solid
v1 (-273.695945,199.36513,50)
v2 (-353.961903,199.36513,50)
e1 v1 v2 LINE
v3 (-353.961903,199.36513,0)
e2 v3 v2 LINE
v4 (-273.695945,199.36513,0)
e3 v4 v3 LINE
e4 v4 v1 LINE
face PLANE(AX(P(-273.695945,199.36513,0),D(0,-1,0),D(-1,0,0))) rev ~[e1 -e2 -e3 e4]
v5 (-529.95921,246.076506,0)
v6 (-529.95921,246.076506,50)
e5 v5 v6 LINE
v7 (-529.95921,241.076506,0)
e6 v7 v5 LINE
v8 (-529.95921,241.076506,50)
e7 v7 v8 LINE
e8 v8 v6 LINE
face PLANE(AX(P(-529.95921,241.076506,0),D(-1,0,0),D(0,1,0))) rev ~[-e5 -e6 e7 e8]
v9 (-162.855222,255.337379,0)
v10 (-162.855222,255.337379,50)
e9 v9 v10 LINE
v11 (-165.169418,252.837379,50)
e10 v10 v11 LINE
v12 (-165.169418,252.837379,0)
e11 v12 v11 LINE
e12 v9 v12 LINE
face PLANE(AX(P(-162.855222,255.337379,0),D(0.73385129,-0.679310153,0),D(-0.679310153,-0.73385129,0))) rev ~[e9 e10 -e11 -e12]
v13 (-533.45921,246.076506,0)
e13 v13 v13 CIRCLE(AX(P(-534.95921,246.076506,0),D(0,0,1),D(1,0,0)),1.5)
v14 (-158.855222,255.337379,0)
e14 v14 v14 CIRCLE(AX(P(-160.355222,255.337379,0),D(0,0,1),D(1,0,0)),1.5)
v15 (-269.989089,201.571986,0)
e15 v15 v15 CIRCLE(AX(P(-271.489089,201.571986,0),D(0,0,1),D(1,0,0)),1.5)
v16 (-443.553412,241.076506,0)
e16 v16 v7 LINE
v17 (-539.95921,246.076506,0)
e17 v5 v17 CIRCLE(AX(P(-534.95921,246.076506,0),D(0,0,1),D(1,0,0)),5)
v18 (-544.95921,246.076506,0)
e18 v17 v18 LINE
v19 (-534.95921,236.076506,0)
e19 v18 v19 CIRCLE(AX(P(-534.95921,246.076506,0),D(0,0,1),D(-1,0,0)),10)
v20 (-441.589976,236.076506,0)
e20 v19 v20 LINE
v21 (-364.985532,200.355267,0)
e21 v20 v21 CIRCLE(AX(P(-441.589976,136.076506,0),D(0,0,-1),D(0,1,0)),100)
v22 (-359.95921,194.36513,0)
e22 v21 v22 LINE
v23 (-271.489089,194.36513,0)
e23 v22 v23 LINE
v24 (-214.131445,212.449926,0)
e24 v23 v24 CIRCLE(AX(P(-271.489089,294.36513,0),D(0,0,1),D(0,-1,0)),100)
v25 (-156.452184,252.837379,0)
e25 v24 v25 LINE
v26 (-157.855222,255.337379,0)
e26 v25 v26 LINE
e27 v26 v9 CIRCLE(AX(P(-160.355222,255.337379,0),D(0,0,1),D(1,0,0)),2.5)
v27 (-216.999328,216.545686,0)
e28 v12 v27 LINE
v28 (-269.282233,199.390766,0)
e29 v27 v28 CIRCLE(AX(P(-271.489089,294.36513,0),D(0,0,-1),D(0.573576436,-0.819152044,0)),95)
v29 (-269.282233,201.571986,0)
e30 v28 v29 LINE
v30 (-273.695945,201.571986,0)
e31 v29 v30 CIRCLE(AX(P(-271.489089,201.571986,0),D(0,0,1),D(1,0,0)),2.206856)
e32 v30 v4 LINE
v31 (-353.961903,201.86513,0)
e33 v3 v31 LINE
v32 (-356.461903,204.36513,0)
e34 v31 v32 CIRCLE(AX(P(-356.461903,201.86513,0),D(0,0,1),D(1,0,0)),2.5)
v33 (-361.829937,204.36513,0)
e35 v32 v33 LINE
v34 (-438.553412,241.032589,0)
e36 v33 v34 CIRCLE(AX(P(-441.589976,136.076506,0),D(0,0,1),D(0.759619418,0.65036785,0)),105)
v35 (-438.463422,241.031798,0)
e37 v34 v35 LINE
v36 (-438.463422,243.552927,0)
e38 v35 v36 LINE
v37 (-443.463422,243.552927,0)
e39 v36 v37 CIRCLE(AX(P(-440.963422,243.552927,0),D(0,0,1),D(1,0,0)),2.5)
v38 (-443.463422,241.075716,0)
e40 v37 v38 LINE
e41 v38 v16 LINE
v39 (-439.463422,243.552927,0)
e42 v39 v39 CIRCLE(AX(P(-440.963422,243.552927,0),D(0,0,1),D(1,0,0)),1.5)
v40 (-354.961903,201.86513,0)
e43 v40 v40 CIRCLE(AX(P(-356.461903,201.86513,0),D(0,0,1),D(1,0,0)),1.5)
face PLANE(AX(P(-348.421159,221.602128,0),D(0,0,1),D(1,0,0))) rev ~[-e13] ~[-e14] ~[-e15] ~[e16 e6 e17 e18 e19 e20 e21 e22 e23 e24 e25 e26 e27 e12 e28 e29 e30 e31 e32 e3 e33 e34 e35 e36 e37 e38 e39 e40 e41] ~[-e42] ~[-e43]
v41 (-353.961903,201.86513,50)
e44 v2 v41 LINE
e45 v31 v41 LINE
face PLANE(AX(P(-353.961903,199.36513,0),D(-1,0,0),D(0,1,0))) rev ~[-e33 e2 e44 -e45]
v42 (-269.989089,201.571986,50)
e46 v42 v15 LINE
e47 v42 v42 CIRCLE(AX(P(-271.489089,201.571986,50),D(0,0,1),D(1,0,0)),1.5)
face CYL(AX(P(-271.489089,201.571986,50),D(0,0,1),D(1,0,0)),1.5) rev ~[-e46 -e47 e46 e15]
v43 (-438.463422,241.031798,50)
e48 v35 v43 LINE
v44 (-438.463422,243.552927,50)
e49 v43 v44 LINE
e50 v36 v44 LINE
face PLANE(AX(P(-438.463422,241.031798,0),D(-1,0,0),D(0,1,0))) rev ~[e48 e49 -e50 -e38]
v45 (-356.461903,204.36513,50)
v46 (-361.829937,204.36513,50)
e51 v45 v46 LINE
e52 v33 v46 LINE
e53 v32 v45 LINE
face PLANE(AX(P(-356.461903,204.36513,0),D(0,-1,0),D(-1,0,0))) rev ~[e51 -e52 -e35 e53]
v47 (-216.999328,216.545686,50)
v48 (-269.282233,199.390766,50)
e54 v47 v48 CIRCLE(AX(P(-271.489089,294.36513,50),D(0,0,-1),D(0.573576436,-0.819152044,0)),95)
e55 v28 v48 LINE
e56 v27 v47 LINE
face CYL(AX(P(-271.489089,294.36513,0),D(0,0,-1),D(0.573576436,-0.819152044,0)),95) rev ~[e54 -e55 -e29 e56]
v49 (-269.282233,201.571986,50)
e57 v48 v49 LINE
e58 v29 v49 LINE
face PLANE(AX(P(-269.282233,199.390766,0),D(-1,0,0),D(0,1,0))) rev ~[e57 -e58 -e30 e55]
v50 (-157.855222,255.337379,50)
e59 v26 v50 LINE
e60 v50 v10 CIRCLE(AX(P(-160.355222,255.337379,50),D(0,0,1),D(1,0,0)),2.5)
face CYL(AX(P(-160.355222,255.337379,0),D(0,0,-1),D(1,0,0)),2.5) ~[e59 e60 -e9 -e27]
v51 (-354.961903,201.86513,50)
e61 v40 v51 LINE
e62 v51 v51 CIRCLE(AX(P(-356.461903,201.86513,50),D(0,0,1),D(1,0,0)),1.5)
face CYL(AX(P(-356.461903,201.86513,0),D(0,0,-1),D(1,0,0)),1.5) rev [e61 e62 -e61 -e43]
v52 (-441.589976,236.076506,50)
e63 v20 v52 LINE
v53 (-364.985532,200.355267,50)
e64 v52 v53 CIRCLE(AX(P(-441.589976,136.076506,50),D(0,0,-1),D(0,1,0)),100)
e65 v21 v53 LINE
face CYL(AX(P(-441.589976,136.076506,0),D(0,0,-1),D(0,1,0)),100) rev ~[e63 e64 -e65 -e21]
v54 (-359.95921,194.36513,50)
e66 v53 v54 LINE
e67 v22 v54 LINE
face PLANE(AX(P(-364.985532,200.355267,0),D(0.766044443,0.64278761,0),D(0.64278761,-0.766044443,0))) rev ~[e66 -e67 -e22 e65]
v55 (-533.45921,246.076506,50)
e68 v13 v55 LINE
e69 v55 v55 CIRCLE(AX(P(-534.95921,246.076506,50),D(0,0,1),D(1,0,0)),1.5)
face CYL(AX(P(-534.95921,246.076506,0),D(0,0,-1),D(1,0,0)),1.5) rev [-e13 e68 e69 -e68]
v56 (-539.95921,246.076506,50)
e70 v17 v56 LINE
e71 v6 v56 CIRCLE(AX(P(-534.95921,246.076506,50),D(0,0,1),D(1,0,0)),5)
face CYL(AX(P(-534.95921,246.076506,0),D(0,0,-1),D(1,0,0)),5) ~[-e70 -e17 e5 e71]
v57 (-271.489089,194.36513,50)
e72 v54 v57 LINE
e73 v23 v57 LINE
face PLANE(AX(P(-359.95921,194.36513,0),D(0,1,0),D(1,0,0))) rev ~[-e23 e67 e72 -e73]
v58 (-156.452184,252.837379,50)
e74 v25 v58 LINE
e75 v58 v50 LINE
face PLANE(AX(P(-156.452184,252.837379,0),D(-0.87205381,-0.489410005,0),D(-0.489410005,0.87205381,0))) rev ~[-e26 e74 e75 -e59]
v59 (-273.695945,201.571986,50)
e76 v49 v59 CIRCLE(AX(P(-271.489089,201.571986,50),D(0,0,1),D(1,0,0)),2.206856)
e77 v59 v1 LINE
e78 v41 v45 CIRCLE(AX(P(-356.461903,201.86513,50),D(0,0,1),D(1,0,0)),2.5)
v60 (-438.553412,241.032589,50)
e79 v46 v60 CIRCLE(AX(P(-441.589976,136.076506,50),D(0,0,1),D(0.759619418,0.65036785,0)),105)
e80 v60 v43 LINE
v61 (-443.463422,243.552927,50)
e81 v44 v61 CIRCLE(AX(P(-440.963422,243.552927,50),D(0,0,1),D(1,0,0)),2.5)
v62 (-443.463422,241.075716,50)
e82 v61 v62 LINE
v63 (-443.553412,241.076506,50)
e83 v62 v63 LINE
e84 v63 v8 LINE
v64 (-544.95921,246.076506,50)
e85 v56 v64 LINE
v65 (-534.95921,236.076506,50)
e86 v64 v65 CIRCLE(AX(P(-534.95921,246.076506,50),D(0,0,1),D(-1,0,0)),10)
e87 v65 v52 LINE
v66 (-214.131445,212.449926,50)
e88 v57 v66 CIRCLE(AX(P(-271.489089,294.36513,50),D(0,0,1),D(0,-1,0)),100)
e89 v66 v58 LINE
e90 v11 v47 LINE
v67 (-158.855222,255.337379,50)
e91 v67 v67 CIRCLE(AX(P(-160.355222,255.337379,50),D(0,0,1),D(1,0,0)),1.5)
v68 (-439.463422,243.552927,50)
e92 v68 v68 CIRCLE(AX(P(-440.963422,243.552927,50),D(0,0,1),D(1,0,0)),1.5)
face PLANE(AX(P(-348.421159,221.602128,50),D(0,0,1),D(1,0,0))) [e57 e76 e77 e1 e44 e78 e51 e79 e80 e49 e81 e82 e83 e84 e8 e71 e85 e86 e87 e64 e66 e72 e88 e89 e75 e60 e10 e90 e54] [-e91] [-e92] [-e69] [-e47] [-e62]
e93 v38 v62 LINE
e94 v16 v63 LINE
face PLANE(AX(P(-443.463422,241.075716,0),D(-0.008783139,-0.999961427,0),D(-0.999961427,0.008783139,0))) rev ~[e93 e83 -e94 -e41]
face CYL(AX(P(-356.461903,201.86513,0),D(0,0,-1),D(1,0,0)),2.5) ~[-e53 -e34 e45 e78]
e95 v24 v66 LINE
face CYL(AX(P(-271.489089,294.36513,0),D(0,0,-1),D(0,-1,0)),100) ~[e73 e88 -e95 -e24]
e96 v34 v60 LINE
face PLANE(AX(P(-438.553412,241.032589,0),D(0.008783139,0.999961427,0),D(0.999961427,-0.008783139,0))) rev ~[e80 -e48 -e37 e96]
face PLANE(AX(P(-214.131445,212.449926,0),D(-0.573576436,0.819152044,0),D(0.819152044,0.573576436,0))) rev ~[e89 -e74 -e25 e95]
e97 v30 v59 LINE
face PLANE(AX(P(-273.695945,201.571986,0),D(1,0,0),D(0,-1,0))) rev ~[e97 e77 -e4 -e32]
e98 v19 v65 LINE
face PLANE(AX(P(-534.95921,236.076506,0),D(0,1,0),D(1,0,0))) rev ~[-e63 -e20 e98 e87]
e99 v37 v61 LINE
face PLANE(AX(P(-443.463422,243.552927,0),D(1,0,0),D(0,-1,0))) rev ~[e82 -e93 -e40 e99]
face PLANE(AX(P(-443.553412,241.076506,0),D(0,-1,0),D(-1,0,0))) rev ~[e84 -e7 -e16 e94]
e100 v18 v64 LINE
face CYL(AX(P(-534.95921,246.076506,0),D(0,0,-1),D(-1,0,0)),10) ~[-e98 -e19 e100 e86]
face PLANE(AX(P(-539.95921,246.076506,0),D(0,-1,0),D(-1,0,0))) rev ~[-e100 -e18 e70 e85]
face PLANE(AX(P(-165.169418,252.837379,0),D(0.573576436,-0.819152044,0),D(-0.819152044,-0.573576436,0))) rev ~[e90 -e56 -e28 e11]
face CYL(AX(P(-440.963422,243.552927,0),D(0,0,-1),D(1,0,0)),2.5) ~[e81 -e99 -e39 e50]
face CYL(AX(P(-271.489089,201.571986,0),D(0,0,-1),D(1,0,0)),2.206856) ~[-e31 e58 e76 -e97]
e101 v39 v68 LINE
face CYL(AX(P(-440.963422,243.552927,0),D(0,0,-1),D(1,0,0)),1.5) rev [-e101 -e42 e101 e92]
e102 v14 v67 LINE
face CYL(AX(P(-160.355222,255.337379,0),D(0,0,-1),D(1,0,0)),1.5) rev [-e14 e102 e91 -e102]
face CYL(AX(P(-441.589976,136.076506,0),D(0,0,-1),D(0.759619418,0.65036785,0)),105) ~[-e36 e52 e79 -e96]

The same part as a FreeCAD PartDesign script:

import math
import FreeCAD as App
import Part
import Sketcher
from FreeCAD import Vector
Q = App.Units.Quantity

doc = App.newDocument("Part")
body = doc.addObject("PartDesign::Body", "Body")

# Sketch on XY plane
sketch1 = doc.addObject("Sketcher::SketchObject", "Sketch")
body.addObject(sketch1)
sketch1.AttachmentSupport = (doc.XY_Plane, [""])
sketch1.MapMode = "FlatFace"
sketch1.addGeometry([
    Part.ArcOfCircle(Part.Circle(Vector(-440.963422, 243.552927, 0), Vector(0, 0, 1), 2.5), math.radians(0), math.radians(180)),  # 0
    Part.LineSegment(Vector(-443.463422, 243.552927, 0), Vector(-443.463422, 241.075716, 0)),  # 1
    Part.LineSegment(Vector(-443.463422, 241.075716, 0), Vector(-443.553412, 241.076506, 0)),  # 2
    Part.LineSegment(Vector(-443.553412, 241.076506, 0), Vector(-529.95921, 241.076506, 0)),  # 3
    Part.LineSegment(Vector(-529.95921, 241.076506, 0), Vector(-529.95921, 246.076506, 0)),  # 4
    Part.ArcOfCircle(Part.Circle(Vector(-534.95921, 246.076506, 0), Vector(0, 0, 1), 5), math.radians(0), math.radians(180)),  # 5
    Part.LineSegment(Vector(-539.95921, 246.076506, 0), Vector(-544.95921, 246.076506, 0)),  # 6
    Part.ArcOfCircle(Part.Circle(Vector(-534.95921, 246.076506, 0), Vector(0, 0, 1), 10), math.radians(-180), math.radians(-90)),  # 7
    Part.LineSegment(Vector(-534.95921, 236.076506, 0), Vector(-441.589976, 236.076506, 0)),  # 8
    Part.ArcOfCircle(Part.Circle(Vector(-441.589976, 136.076506, 0), Vector(0, 0, 1), 100), math.radians(40), math.radians(90)),  # 9
    Part.LineSegment(Vector(-364.985532, 200.355267, 0), Vector(-359.95921, 194.36513, 0)),  # 10
    Part.LineSegment(Vector(-359.95921, 194.36513, 0), Vector(-271.489089, 194.36513, 0)),  # 11
    Part.ArcOfCircle(Part.Circle(Vector(-271.489089, 294.36513, 0), Vector(0, 0, 1), 100), math.radians(-90), math.radians(-55)),  # 12
    Part.LineSegment(Vector(-214.131445, 212.449926, 0), Vector(-156.452184, 252.837379, 0)),  # 13
    Part.LineSegment(Vector(-156.452184, 252.837379, 0), Vector(-157.855222, 255.337379, 0)),  # 14
    Part.ArcOfCircle(Part.Circle(Vector(-160.355222, 255.337379, 0), Vector(0, 0, 1), 2.5), math.radians(0), math.radians(180)),  # 15
    Part.LineSegment(Vector(-162.855222, 255.337379, 0), Vector(-165.169418, 252.837379, 0)),  # 16
    Part.LineSegment(Vector(-165.169418, 252.837379, 0), Vector(-216.999328, 216.545686, 0)),  # 17
    Part.ArcOfCircle(Part.Circle(Vector(-271.489089, 294.36513, 0), Vector(0, 0, 1), 95), math.radians(-88.668896), math.radians(-55)),  # 18
    Part.LineSegment(Vector(-269.282233, 199.390766, 0), Vector(-269.282233, 201.571986, 0)),  # 19
    Part.ArcOfCircle(Part.Circle(Vector(-271.489089, 201.571986, 0), Vector(0, 0, 1), 2.206856), math.radians(0), math.radians(180)),  # 20
    Part.LineSegment(Vector(-273.695945, 201.571986, 0), Vector(-273.695945, 199.36513, 0)),  # 21
    Part.LineSegment(Vector(-273.695945, 199.36513, 0), Vector(-353.961903, 199.36513, 0)),  # 22
    Part.LineSegment(Vector(-353.961903, 199.36513, 0), Vector(-353.961903, 201.86513, 0)),  # 23
    Part.ArcOfCircle(Part.Circle(Vector(-356.461903, 201.86513, 0), Vector(0, 0, 1), 2.5), math.radians(0), math.radians(90)),  # 24
    Part.LineSegment(Vector(-356.461903, 204.36513, 0), Vector(-361.829937, 204.36513, 0)),  # 25
    Part.ArcOfCircle(Part.Circle(Vector(-441.589976, 136.076506, 0), Vector(0, 0, 1), 105), math.radians(40.569342), math.radians(88.342794)),  # 26
    Part.LineSegment(Vector(-438.553412, 241.032589, 0), Vector(-438.463422, 241.031798, 0)),  # 27
    Part.LineSegment(Vector(-438.463422, 241.031798, 0), Vector(-438.463422, 243.552927, 0)),  # 28
    Part.Circle(Vector(-356.461903, 201.86513, 0), Vector(0, 0, 1), 1.5),  # 29
    Part.Circle(Vector(-534.95921, 246.076506, 0), Vector(0, 0, 1), 1.5),  # 30
    Part.Circle(Vector(-440.963422, 243.552927, 0), Vector(0, 0, 1), 1.5),  # 31
    Part.Circle(Vector(-160.355222, 255.337379, 0), Vector(0, 0, 1), 1.5),  # 32
], False)
sketch1.addConstraint([
    Sketcher.Constraint("Tangent", 0, 2, 1, 1),
    Sketcher.Constraint("Coincident", 1, 2, 2, 1),
    Sketcher.Constraint("Coincident", 2, 2, 3, 1),
    Sketcher.Constraint("Coincident", 3, 2, 4, 1),
    Sketcher.Constraint("Tangent", 4, 2, 5, 1),
    Sketcher.Constraint("Coincident", 5, 2, 6, 1),
    Sketcher.Constraint("Coincident", 6, 2, 7, 1),
    Sketcher.Constraint("Tangent", 7, 2, 8, 1),
    Sketcher.Constraint("Tangent", 8, 2, 9, 2),
    Sketcher.Constraint("Tangent", 9, 1, 10, 1),
    Sketcher.Constraint("Coincident", 10, 2, 11, 1),
    Sketcher.Constraint("Tangent", 11, 2, 12, 1),
    Sketcher.Constraint("Tangent", 12, 2, 13, 1),
    Sketcher.Constraint("Coincident", 13, 2, 14, 1),
    Sketcher.Constraint("Coincident", 14, 2, 15, 1),
    Sketcher.Constraint("Coincident", 15, 2, 16, 1),
    Sketcher.Constraint("Coincident", 16, 2, 17, 1),
    Sketcher.Constraint("Tangent", 17, 2, 18, 2),
    Sketcher.Constraint("Coincident", 18, 1, 19, 1),
    Sketcher.Constraint("Tangent", 19, 2, 20, 1),
    Sketcher.Constraint("Tangent", 20, 2, 21, 1),
    Sketcher.Constraint("Coincident", 21, 2, 22, 1),
    Sketcher.Constraint("Coincident", 22, 2, 23, 1),
    Sketcher.Constraint("Tangent", 23, 2, 24, 1),
    Sketcher.Constraint("Tangent", 24, 2, 25, 1),
    Sketcher.Constraint("Coincident", 25, 2, 26, 1),
    Sketcher.Constraint("Coincident", 26, 2, 27, 1),
    Sketcher.Constraint("Coincident", 27, 2, 28, 1),
    Sketcher.Constraint("Tangent", 28, 2, 0, 1),
    Sketcher.Constraint("Vertical", 1),
    Sketcher.Constraint("Horizontal", 3),
    Sketcher.Constraint("Vertical", 4),
    Sketcher.Constraint("Horizontal", 6),
    Sketcher.Constraint("Horizontal", 8),
    Sketcher.Constraint("Horizontal", 11),
    Sketcher.Constraint("Vertical", 19),
    Sketcher.Constraint("Vertical", 21),
    Sketcher.Constraint("Horizontal", 22),
    Sketcher.Constraint("Vertical", 23),
    Sketcher.Constraint("Horizontal", 25),
    Sketcher.Constraint("Vertical", 28),
    Sketcher.Constraint("Coincident", 7, 3, 5, 3),
    Sketcher.Constraint("Coincident", 18, 3, 12, 3),
    Sketcher.Constraint("Coincident", 26, 3, 9, 3),
    Sketcher.Constraint("Coincident", 29, 3, 24, 3),
    Sketcher.Constraint("Coincident", 30, 3, 5, 3),
    Sketcher.Constraint("Coincident", 31, 3, 0, 3),
    Sketcher.Constraint("Coincident", 32, 3, 15, 3),
    Sketcher.Constraint("Equal", 9, 12),
    Sketcher.Constraint("Equal", 0, 15),
    Sketcher.Constraint("Equal", 15, 24),
    Sketcher.Constraint("Equal", 29, 30),
    Sketcher.Constraint("Equal", 30, 31),
    Sketcher.Constraint("Equal", 31, 32),
    Sketcher.Constraint("Parallel", 13, 17),
    Sketcher.Constraint("Parallel", 2, 27),
    Sketcher.Constraint("Horizontal", 4, 2, 5, 2),
    Sketcher.Constraint("Horizontal", 32, 3, 14, 2),
    Sketcher.Constraint("Horizontal", 14, 2, 15, 2),
    Sketcher.Constraint("Horizontal", 13, 2, 16, 2),
    Sketcher.Constraint("Vertical", 18, 3, 20, 3),
    Sketcher.Constraint("Equal", 6, 4),
    Sketcher.Constraint("Equal", 2, 27),
    Sketcher.Constraint("Diameter", 29, Q("3 mm")),
    Sketcher.Constraint("Radius", 5, Q("5 mm")),
    Sketcher.Constraint("Radius", 7, Q("10 mm")),
    Sketcher.Constraint("Radius", 9, Q("100 mm")),
    Sketcher.Constraint("Radius", 18, Q("95 mm")),
    Sketcher.Constraint("Radius", 26, Q("105 mm")),
    Sketcher.Constraint("Radius", 0, Q("2.5 mm")),
    Sketcher.Constraint("Angle", 10, Q("-50 deg")),
    Sketcher.Constraint("Angle", 13, Q("35 deg")),
    Sketcher.Constraint("DistanceY", 23, 1, 23, 2, Q("2.5 mm")),
    Sketcher.Constraint("DistanceY", 11, 2, 21, 2, Q("5 mm")),
    Sketcher.Constraint("DistanceY", 13, 2, 15, 3, Q("2.5 mm")),
    Sketcher.Constraint("DistanceX", 3, 2, 3, 1, Q("86.405799 mm")),
    Sketcher.Constraint("Radius", 20, Q("2.206856 mm")),
    Sketcher.Constraint("DistanceX", 11, 1, 11, 2, Q("88.470121 mm")),
    Sketcher.Constraint("DistanceX", 22, 2, 22, 1, Q("80.265958 mm")),
    Sketcher.Constraint("DistanceY", 1, 2, 1, 1, Q("2.477212 mm")),
    Sketcher.Constraint("DistanceY", 19, 1, 19, 2, Q("2.181219 mm")),
    Sketcher.Constraint("DistanceY", 28, 1, 28, 2, Q("2.521129 mm")),
    Sketcher.Constraint("DistanceY", -1, 1, 27, 2, Q("241.031798 mm")),
    Sketcher.Constraint("DistanceX", 0, 3, 15, 3, Q("280.608199 mm")),
    Sketcher.Constraint("Distance", 10, Q("7.819568 mm")),
    Sketcher.Constraint("DistanceX", 0, 3, -1, 1, Q("440.963422 mm")),
    Sketcher.Constraint("DistanceX", 5, 3, -1, 1, Q("534.95921 mm")),
    Sketcher.Constraint("DistanceY", -1, 1, 12, 3, Q("294.36513 mm")),
    Sketcher.Constraint("DistanceY", -1, 1, 15, 3, Q("255.337379 mm")),
])
pad1 = doc.addObject("PartDesign::Pad", "Pad")
body.addObject(pad1)
pad1.Profile = sketch1
pad1.Length = 50

# Sketch on XY plane
sketch2 = doc.addObject("Sketcher::SketchObject", "Sketch001")
body.addObject(sketch2)
sketch2.AttachmentSupport = (doc.XY_Plane, [""])
sketch2.MapMode = "FlatFace"
sketch2.AttachmentOffset = App.Placement(Vector(0, 0, 50), App.Rotation())
sketch2.addGeometry(Part.Circle(Vector(-271.489089, 201.571986, 0), Vector(0, 0, 1), 1.5), False)
sketch2.addConstraint([
    Sketcher.Constraint("Diameter", 0, Q("3 mm")),
    Sketcher.Constraint("DistanceX", 0, 3, -1, 1, Q("271.489089 mm")),
    Sketcher.Constraint("DistanceY", -1, 1, 0, 3, Q("201.571986 mm")),
])
pocket1 = doc.addObject("PartDesign::Pocket", "Pocket")
body.addObject(pocket1)
pocket1.Profile = sketch2
pocket1.Length = 50

doc.recompute()
